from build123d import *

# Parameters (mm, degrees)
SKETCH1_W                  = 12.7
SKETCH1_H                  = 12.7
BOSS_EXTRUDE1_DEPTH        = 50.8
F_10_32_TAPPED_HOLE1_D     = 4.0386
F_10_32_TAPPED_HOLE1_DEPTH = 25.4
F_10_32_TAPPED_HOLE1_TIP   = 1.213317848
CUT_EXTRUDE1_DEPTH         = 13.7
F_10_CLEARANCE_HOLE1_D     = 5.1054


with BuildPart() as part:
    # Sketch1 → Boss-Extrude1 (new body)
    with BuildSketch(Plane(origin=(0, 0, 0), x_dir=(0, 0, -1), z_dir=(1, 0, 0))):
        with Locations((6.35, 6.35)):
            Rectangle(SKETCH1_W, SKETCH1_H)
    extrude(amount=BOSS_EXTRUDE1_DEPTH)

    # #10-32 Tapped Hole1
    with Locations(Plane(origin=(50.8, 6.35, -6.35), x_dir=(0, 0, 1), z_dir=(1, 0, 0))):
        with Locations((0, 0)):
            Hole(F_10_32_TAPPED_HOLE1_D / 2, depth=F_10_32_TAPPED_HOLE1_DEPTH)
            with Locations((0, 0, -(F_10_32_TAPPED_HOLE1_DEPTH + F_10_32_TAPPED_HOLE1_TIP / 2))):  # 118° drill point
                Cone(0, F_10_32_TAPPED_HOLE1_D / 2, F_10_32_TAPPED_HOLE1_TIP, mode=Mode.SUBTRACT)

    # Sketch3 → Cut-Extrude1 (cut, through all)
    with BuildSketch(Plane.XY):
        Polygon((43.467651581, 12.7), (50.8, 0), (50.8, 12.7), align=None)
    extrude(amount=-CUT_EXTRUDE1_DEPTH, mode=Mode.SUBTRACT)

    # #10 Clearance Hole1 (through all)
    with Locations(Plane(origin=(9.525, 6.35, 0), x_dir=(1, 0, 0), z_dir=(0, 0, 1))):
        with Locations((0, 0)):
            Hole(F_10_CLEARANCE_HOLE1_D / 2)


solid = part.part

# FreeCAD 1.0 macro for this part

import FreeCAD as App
import Part
import Sketcher

V = App.Vector
Q = App.Units.Quantity

doc = App.newDocument("Part")
body = doc.addObject("PartDesign::Body", "Body")

# Sketch on YZ plane
sketch1 = body.newObject("Sketcher::SketchObject", "Sketch")
sketch1.AttachmentSupport = (doc.getObject("YZ_Plane"), [""])
sketch1.MapMode = "FlatFace"
sketch1.addGeometry([
    Part.LineSegment(V(13, 0, 0), V(0, 0, 0)),
    Part.LineSegment(V(0, 0, 0), V(0, -13, 0)),
    Part.LineSegment(V(0, -13, 0), V(13, -13, 0)),
    Part.LineSegment(V(13, -13, 0), V(13, 0, 0)),
], False)
sketch1.addConstraint([
    Sketcher.Constraint("Coincident", 0, 2, 1, 1),
    Sketcher.Constraint("Coincident", 1, 2, 2, 1),
    Sketcher.Constraint("Coincident", 2, 2, 3, 1),
    Sketcher.Constraint("Coincident", 3, 2, 0, 1),
    Sketcher.Constraint("Horizontal", 0),
    Sketcher.Constraint("Vertical", 1),
    Sketcher.Constraint("Horizontal", 2),
    Sketcher.Constraint("Vertical", 3),
    Sketcher.Constraint("Coincident", 0, 2, -1, 1),
    Sketcher.Constraint("Equal", 2, 1),
    Sketcher.Constraint("DistanceX", 0, 2, 0, 1, Q("0.5 in")),
])
pad1 = body.newObject("PartDesign::Pad", "Pad")
pad1.Profile = sketch1
pad1.Length = Q("2 in")

# Sketch on YZ plane
sketch2 = body.newObject("Sketcher::SketchObject", "Sketch001")
sketch2.AttachmentSupport = (doc.getObject("YZ_Plane"), [""])
sketch2.MapMode = "FlatFace"
sketch2.AttachmentOffset = App.Placement(V(0, 0, 2 * 25.4), App.Rotation())
sketch2.addGeometry(Part.Circle(V(6.3, -6.3, 0), V(0, 0, 1), 2), False)
sketch2.addConstraint([
    Sketcher.Constraint("Diameter", 0, Q("0.159 in")),
    Sketcher.Constraint("DistanceX", -1, 1, 0, 3, Q("0.25 in")),
    Sketcher.Constraint("DistanceY", 0, 3, -1, 1, Q("0.25 in")),
])
doc.recompute()
hole = body.newObject("PartDesign::Hole", "Hole")
hole.Profile = sketch2
hole.ThreadType = "None"
hole.Diameter = Q("0.159 in")
hole.DepthType = "Dimension"
hole.Depth = Q("1 in")
hole.DrillPoint = "Angled"
hole.DrillPointAngle = 118

# Sketch on XY plane
sketch3 = body.newObject("Sketcher::SketchObject", "Sketch002")
sketch3.AttachmentSupport = (doc.getObject("XY_Plane"), [""])
sketch3.MapMode = "FlatFace"
sketch3.addGeometry([
    Part.LineSegment(V(43, 13, 0), V(51, 0, 0)),
    Part.LineSegment(V(51, 0, 0), V(51, 13, 0)),
    Part.LineSegment(V(51, 13, 0), V(43, 13, 0)),
], False)
sketch3.addConstraint([
    Sketcher.Constraint("Coincident", 0, 2, 1, 1),
    Sketcher.Constraint("Coincident", 1, 2, 2, 1),
    Sketcher.Constraint("Coincident", 2, 2, 0, 1),
    Sketcher.Constraint("Vertical", 1),
    Sketcher.Constraint("Horizontal", 2),
    Sketcher.Constraint("PointOnObject", 0, 2, -1),
    Sketcher.Constraint("DistanceY", 1, 1, 1, 2, Q("0.5 in")),
    Sketcher.Constraint("DistanceX", -1, 1, 0, 2, Q("2 in")),
    Sketcher.Constraint("Angle", 0, Q("-60 deg")),
])
pocket1 = body.newObject("PartDesign::Pocket", "Pocket")
pocket1.Profile = sketch3
pocket1.Type = "ThroughAll"

# Sketch on XY plane
sketch4 = body.newObject("Sketcher::SketchObject", "Sketch003")
sketch4.AttachmentSupport = (doc.getObject("XY_Plane"), [""])
sketch4.MapMode = "FlatFace"
sketch4.addGeometry(Part.Circle(V(9.5, 6.3, 0), V(0, 0, 1), 2.6), False)
sketch4.addConstraint([
    Sketcher.Constraint("Diameter", 0, Q("0.201 in")),
    Sketcher.Constraint("DistanceY", -1, 1, 0, 3, Q("0.25 in")),
    Sketcher.Constraint("DistanceX", -1, 1, 0, 3, Q("0.375 in")),
])
doc.recompute()
hole2 = body.newObject("PartDesign::Hole", "Hole001")
hole2.Profile = sketch4
hole2.ThreadType = "None"
hole2.Diameter = Q("0.201 in")
hole2.DepthType = "ThroughAll"

doc.recompute()
